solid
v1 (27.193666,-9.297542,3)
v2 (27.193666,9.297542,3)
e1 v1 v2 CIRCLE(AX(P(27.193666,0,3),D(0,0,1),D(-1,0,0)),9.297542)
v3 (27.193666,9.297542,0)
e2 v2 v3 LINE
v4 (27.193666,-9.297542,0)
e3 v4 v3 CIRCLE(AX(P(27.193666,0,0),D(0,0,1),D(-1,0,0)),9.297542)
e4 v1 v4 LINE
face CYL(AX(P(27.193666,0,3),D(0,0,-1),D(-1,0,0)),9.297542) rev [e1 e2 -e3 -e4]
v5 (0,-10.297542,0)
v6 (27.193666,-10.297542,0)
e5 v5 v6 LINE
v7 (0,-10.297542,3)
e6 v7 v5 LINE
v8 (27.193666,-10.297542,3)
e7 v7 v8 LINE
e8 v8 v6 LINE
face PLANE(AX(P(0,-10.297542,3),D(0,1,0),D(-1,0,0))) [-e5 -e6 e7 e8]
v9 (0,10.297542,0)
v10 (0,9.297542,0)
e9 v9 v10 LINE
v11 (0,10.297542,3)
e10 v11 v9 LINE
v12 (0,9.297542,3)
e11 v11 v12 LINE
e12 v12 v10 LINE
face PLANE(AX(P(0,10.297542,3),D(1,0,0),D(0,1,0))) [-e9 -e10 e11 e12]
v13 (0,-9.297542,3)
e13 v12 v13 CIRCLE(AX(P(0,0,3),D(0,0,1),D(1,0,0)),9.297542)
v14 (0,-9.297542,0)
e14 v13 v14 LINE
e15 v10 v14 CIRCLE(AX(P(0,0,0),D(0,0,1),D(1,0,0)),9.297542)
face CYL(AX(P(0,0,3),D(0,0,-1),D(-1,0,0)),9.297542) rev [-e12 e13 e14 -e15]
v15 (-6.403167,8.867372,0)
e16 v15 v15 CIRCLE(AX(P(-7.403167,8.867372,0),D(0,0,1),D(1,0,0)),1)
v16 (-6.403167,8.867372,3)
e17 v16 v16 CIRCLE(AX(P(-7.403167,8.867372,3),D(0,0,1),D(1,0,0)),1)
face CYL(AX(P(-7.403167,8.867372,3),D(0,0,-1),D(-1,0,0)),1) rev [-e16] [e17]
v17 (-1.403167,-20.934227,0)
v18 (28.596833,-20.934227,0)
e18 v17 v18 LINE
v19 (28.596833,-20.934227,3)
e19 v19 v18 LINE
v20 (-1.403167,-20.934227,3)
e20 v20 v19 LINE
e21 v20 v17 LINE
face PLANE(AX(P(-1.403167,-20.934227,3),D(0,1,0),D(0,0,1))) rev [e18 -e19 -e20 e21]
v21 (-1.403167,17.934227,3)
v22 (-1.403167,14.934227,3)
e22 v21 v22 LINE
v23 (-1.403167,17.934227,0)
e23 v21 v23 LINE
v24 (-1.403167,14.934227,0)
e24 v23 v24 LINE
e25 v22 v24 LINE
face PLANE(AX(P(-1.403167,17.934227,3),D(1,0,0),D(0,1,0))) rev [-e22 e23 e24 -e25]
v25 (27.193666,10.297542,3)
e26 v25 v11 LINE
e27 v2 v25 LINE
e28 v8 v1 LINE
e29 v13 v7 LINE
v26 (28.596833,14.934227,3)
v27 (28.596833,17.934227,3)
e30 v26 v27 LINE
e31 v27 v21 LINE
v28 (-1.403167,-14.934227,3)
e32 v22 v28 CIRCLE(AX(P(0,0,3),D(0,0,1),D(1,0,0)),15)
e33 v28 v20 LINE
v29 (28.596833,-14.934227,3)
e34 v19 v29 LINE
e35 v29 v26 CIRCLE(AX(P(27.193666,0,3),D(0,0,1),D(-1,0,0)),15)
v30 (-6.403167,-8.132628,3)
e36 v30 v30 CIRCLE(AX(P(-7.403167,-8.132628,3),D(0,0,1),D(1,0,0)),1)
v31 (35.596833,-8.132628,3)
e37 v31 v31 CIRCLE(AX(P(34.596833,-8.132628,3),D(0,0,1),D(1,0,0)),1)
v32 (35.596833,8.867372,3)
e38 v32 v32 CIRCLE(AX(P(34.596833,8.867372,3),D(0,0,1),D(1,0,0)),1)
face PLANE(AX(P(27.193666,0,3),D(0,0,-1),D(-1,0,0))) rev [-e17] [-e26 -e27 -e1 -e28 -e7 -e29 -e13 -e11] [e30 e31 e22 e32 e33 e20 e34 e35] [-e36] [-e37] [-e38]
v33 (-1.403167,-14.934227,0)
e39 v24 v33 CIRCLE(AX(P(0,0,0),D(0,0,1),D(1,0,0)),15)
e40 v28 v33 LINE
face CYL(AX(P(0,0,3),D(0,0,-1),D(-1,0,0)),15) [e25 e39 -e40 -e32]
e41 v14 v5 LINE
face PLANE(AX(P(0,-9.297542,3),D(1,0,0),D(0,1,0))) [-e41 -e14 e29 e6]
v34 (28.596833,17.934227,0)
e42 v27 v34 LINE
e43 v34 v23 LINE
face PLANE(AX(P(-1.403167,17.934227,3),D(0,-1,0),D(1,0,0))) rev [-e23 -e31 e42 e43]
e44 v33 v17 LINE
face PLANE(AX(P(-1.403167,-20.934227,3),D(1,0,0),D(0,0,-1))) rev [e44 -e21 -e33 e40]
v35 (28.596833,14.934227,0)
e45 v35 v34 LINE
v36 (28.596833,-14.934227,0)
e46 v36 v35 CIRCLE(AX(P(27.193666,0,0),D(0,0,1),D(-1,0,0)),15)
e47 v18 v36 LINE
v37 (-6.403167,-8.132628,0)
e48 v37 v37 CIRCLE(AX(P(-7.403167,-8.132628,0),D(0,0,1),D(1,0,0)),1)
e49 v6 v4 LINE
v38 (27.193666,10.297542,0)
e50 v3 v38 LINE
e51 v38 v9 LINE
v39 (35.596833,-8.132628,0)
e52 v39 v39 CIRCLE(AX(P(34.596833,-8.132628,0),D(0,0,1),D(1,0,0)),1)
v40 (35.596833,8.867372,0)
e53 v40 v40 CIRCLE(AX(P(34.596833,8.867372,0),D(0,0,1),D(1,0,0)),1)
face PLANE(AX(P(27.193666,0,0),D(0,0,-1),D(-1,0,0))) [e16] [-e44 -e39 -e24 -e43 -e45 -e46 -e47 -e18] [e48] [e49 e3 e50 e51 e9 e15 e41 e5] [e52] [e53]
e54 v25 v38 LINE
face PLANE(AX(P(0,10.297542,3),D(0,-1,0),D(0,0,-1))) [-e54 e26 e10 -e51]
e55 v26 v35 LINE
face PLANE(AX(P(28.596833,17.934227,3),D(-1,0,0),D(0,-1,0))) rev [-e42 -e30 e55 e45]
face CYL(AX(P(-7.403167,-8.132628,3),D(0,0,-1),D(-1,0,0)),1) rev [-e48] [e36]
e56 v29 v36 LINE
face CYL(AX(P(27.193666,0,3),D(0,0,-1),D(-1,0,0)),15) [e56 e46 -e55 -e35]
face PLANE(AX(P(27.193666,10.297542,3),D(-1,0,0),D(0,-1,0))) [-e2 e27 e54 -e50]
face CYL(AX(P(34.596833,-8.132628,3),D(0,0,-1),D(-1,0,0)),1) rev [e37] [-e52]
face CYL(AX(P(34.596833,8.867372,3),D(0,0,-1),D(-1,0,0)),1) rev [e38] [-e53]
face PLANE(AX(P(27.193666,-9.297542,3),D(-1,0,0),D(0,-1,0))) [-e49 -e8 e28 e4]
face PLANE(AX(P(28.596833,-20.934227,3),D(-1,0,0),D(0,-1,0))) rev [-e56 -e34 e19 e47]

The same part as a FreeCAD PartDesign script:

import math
import FreeCAD as App
import Part
import Sketcher

V = App.Vector

doc = App.newDocument("Part")
body = doc.addObject("PartDesign::Body", "Body")

# Sketch on XY plane
sketch1 = body.newObject("Sketcher::SketchObject", "Sketch")
sketch1.AttachmentSupport = (doc.getObject("XY_Plane"), [""])
sketch1.MapMode = "FlatFace"
sketch1.addGeometry(Part.LineSegment(V(28.596833, -20.934227, 0), V(28.596833, -14.934227, 0)), False)
sketch1.addGeometry(Part.ArcOfCircle(Part.Circle(V(27.193666, 0, 0), V(0, 0, 1), 15), math.radians(-84.63245), math.radians(84.63245)), False)
sketch1.addGeometry(Part.LineSegment(V(28.596833, 14.934227, 0), V(28.596833, 17.934227, 0)), False)
sketch1.addGeometry(Part.LineSegment(V(28.596833, 17.934227, 0), V(-1.403167, 17.934227, 0)), False)
sketch1.addGeometry(Part.LineSegment(V(-1.403167, 17.934227, 0), V(-1.403167, 14.934227, 0)), False)
sketch1.addGeometry(Part.ArcOfCircle(Part.Circle(V(0, 0, 0), V(0, 0, 1), 15), math.radians(95.36755), math.radians(264.63245)), False)
sketch1.addGeometry(Part.LineSegment(V(-1.403167, -14.934227, 0), V(-1.403167, -20.934227, 0)), False)
sketch1.addGeometry(Part.LineSegment(V(-1.403167, -20.934227, 0), V(28.596833, -20.934227, 0)), False)
sketch1.addGeometry(Part.Circle(V(-7.403167, -8.132628, 0), V(0, 0, 1), 1), False)
sketch1.addGeometry(Part.Circle(V(34.596833, -8.132628, 0), V(0, 0, 1), 1), False)
sketch1.addGeometry(Part.Circle(V(-7.403167, 8.867372, 0), V(0, 0, 1), 1), False)
sketch1.addGeometry(Part.LineSegment(V(27.193666, -10.297542, 0), V(0, -10.297542, 0)), False)
sketch1.addGeometry(Part.LineSegment(V(0, -10.297542, 0), V(0, -9.297542, 0)), False)
sketch1.addGeometry(Part.ArcOfCircle(Part.Circle(V(0, 0, 0), V(0, 0, 1), 9.297542), math.radians(90), math.radians(270)), False)
sketch1.addGeometry(Part.LineSegment(V(0, 9.297542, 0), V(0, 10.297542, 0)), False)
sketch1.addGeometry(Part.LineSegment(V(0, 10.297542, 0), V(27.193666, 10.297542, 0)), False)
sketch1.addGeometry(Part.LineSegment(V(27.193666, 10.297542, 0), V(27.193666, 9.297542, 0)), False)
sketch1.addGeometry(Part.ArcOfCircle(Part.Circle(V(27.193666, 0, 0), V(0, 0, 1), 9.297542), math.radians(-90), math.radians(90)), False)
sketch1.addGeometry(Part.LineSegment(V(27.193666, -9.297542, 0), V(27.193666, -10.297542, 0)), False)
sketch1.addGeometry(Part.Circle(V(34.596833, 8.867372, 0), V(0, 0, 1), 1), False)
sketch1.addConstraint(Sketcher.Constraint("Coincident", 0, 2, 1, 1))
sketch1.addConstraint(Sketcher.Constraint("Coincident", 1, 2, 2, 1))
sketch1.addConstraint(Sketcher.Constraint("Coincident", 2, 2, 3, 1))
sketch1.addConstraint(Sketcher.Constraint("Coincident", 3, 2, 4, 1))
sketch1.addConstraint(Sketcher.Constraint("Coincident", 4, 2, 5, 1))
sketch1.addConstraint(Sketcher.Constraint("Coincident", 5, 2, 6, 1))
sketch1.addConstraint(Sketcher.Constraint("Coincident", 6, 2, 7, 1))
sketch1.addConstraint(Sketcher.Constraint("Coincident", 7, 2, 0, 1))
sketch1.addConstraint(Sketcher.Constraint("Coincident", 11, 2, 12, 1))
sketch1.addConstraint(Sketcher.Constraint("Coincident", 12, 2, 13, 2))
sketch1.addConstraint(Sketcher.Constraint("Coincident", 13, 1, 14, 1))
sketch1.addConstraint(Sketcher.Constraint("Coincident", 14, 2, 15, 1))
sketch1.addConstraint(Sketcher.Constraint("Coincident", 15, 2, 16, 1))
sketch1.addConstraint(Sketcher.Constraint("Coincident", 16, 2, 17, 2))
sketch1.addConstraint(Sketcher.Constraint("Coincident", 17, 1, 18, 1))
sketch1.addConstraint(Sketcher.Constraint("Coincident", 18, 2, 11, 1))
sketch1.addConstraint(Sketcher.Constraint("Vertical", 0))
sketch1.addConstraint(Sketcher.Constraint("Vertical", 2))
sketch1.addConstraint(Sketcher.Constraint("Horizontal", 3))
sketch1.addConstraint(Sketcher.Constraint("Vertical", 4))
sketch1.addConstraint(Sketcher.Constraint("Vertical", 6))
sketch1.addConstraint(Sketcher.Constraint("Horizontal", 7))
sketch1.addConstraint(Sketcher.Constraint("Horizontal", 11))
sketch1.addConstraint(Sketcher.Constraint("Vertical", 12))
sketch1.addConstraint(Sketcher.Constraint("Vertical", 14))
sketch1.addConstraint(Sketcher.Constraint("Horizontal", 15))
sketch1.addConstraint(Sketcher.Constraint("Vertical", 16))
sketch1.addConstraint(Sketcher.Constraint("Vertical", 18))
sketch1.addConstraint(Sketcher.Constraint("Coincident", 5, 3, -1, 1))
sketch1.addConstraint(Sketcher.Constraint("Coincident", 13, 3, -1, 1))
sketch1.addConstraint(Sketcher.Constraint("Coincident", 17, 3, 1, 3))
sketch1.addConstraint(Sketcher.Constraint("Equal", 1, 5))
sketch1.addConstraint(Sketcher.Constraint("Equal", 8, 9))
sketch1.addConstraint(Sketcher.Constraint("Equal", 9, 10))
sketch1.addConstraint(Sketcher.Constraint("Equal", 13, 17))
sketch1.addConstraint(Sketcher.Constraint("Equal", 10, 19))
sketch1.addConstraint(Sketcher.Constraint("Symmetric", 11, 2, 14, 2, -1, 1))
sketch1.addConstraint(Sketcher.Constraint("Symmetric", 0, 2, 1, 2, -1))
sketch1.addConstraint(Sketcher.Constraint("PointOnObject", 11, 2, -2))
sketch1.addConstraint(Sketcher.Constraint("Horizontal", 8, 3, 9, 3))
sketch1.addConstraint(Sketcher.Constraint("Horizontal", 10, 3, 19, 3))
sketch1.addConstraint(Sketcher.Constraint("Horizontal", 1, 2, 4, 2))
sketch1.addConstraint(Sketcher.Constraint("Horizontal", 0, 2, 5, 2))
sketch1.addConstraint(Sketcher.Constraint("Vertical", 8, 3, 10, 3))
sketch1.addConstraint(Sketcher.Constraint("Vertical", 9, 3, 19, 3))
sketch1.addConstraint(Sketcher.Constraint("Vertical", 17, 3, 15, 2))
sketch1.addConstraint(Sketcher.Constraint("Vertical", 16, 2, 17, 1))
sketch1.addConstraint(Sketcher.Constraint("Diameter", 8, 2.0))
sketch1.addConstraint(Sketcher.Constraint("Radius", 1, 15.0))
sketch1.addConstraint(Sketcher.Constraint("DistanceX", 3, 2, 3, 1, 30.0))
sketch1.addConstraint(Sketcher.Constraint("DistanceY", 0, 1, 0, 2, 6.0))
sketch1.addConstraint(Sketcher.Constraint("DistanceY", 2, 1, 2, 2, 3.0))
sketch1.addConstraint(Sketcher.Constraint("DistanceY", 12, 1, 12, 2, 1.0))
sketch1.addConstraint(Sketcher.Constraint("DistanceX", 8, 3, 9, 3, 42.0))
sketch1.addConstraint(Sketcher.Constraint("DistanceY", 8, 3, 10, 3, 17.0))
sketch1.addConstraint(Sketcher.Constraint("DistanceX", 0, 2, 9, 3, 6.0))
sketch1.addConstraint(Sketcher.Constraint("Radius", 13, 9.297542))
sketch1.addConstraint(Sketcher.Constraint("DistanceY", 0, 2, 9, 3, 6.801599))
sketch1.addConstraint(Sketcher.Constraint("DistanceX", 11, 2, 11, 1, 27.193666))
pad1 = body.newObject("PartDesign::Pad", "Pad")
pad1.Profile = sketch1
pad1.Length = 3

doc.recompute()
